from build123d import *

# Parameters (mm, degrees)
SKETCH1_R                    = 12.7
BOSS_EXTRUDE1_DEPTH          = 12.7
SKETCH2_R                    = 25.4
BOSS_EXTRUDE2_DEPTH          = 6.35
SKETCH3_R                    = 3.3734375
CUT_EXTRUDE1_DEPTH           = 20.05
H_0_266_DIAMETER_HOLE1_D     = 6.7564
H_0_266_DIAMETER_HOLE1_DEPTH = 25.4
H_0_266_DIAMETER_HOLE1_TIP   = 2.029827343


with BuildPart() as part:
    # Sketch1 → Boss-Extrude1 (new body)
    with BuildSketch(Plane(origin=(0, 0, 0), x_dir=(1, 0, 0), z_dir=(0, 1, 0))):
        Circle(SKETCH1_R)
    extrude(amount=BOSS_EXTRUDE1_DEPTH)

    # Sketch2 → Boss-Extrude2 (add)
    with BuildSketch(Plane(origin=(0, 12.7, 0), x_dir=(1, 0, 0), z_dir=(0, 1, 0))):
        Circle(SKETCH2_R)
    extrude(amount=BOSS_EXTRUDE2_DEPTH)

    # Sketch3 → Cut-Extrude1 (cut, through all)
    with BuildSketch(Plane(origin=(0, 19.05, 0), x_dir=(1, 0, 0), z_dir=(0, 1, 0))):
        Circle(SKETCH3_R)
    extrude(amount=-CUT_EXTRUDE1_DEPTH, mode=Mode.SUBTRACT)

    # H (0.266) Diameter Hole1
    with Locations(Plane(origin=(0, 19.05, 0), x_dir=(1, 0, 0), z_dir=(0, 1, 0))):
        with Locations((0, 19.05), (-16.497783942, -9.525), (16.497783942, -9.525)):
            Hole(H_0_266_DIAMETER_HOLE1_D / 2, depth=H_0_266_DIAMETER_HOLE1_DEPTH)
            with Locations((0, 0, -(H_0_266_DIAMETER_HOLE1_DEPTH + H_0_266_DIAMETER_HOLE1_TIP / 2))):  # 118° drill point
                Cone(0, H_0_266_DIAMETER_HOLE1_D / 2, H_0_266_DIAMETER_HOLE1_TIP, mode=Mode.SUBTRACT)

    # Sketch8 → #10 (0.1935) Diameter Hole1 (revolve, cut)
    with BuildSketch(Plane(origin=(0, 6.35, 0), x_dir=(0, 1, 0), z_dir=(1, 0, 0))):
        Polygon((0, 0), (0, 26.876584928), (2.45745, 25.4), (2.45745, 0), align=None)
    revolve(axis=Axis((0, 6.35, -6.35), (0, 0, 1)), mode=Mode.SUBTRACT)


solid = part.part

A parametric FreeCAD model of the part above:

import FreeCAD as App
import Part
import Sketcher
Q = App.Units.Quantity

doc = App.newDocument("Part")
body = doc.addObject("PartDesign::Body", "Body")

sketch1 = body.newObject("Sketcher::SketchObject", "Sketch")
sketch1.AttachmentSupport = (doc.getObject("XZ_Plane"), [""])
sketch1.MapMode = "FlatFace"
sketch1.addGeometry(Part.Circle(App.Vector(0, 0, 0), App.Vector(0, 0, 1), 13), False)
sketch1.addConstraint(Sketcher.Constraint("Coincident", 0, 3, -1, 1))
sketch1.addConstraint(Sketcher.Constraint("Diameter", 0, Q("1 in")))
pad1 = body.newObject("PartDesign::Pad", "Pad")
pad1.Profile = sketch1
pad1.Length = Q("0.5 in")
pad1.Reversed = True

sketch2 = body.newObject("Sketcher::SketchObject", "Sketch001")
sketch2.AttachmentSupport = (doc.getObject("XZ_Plane"), [""])
sketch2.MapMode = "FlatFace"
sketch2.AttachmentOffset = App.Placement(App.Vector(0, 0, -0.5 * 25.4), App.Rotation())
sketch2.addGeometry(Part.Circle(App.Vector(0, 0, 0), App.Vector(0, 0, 1), 25), False)
sketch2.addConstraint(Sketcher.Constraint("Coincident", 0, 3, -1, 1))
sketch2.addConstraint(Sketcher.Constraint("Diameter", 0, Q("2 in")))
pad2 = body.newObject("PartDesign::Pad", "Pad001")
pad2.Profile = sketch2
pad2.Length = Q("0.25 in")
pad2.Reversed = True

sketch3 = body.newObject("Sketcher::SketchObject", "Sketch002")
sketch3.AttachmentSupport = (doc.getObject("XZ_Plane"), [""])
sketch3.MapMode = "FlatFace"
sketch3.AttachmentOffset = App.Placement(App.Vector(0, 0, -0.75 * 25.4), App.Rotation())
sketch3.addGeometry(Part.Circle(App.Vector(0, 0, 0), App.Vector(0, 0, 1), 3.4), False)
sketch3.addConstraint(Sketcher.Constraint("Coincident", 0, 3, -1, 1))
sketch3.addConstraint(Sketcher.Constraint("Diameter", 0, Q("0.265625 in")))
pocket1 = body.newObject("PartDesign::Pocket", "Pocket")
pocket1.Profile = sketch3
pocket1.Type = "ThroughAll"
pocket1.Reversed = True

sketch4 = body.newObject("Sketcher::SketchObject", "Sketch003")
sketch4.AttachmentSupport = (doc.getObject("XZ_Plane"), [""])
sketch4.MapMode = "FlatFace"
sketch4.AttachmentOffset = App.Placement(App.Vector(0, 0, -0.75 * 25.4), App.Rotation())
sketch4.addGeometry(Part.Circle(App.Vector(0, -19.1, 0), App.Vector(0, 0, 1), 3.4), False)
sketch4.addGeometry(Part.Circle(App.Vector(-16.5, 9.5, 0), App.Vector(0, 0, 1), 3.4), False)
sketch4.addGeometry(Part.Circle(App.Vector(16.5, 9.5, 0), App.Vector(0, 0, 1), 3.4), False)
sketch4.addConstraint(Sketcher.Constraint("Equal", 0, 1))
sketch4.addConstraint(Sketcher.Constraint("Equal", 1, 2))
sketch4.addConstraint(Sketcher.Constraint("Symmetric", 1, 3, 2, 3, -2))
sketch4.addConstraint(Sketcher.Constraint("PointOnObject", 0, 3, -2))
sketch4.addConstraint(Sketcher.Constraint("Diameter", 0, Q("0.266 in")))
sketch4.addConstraint(Sketcher.Constraint("DistanceY", 0, 3, -1, 1, Q("0.75 in")))
sketch4.addConstraint(Sketcher.Constraint("DistanceY", -1, 1, 1, 3, Q("0.375 in")))
sketch4.addConstraint(Sketcher.Constraint("DistanceX", 1, 3, -1, 1, Q("16.497784 mm")))
doc.recompute()
hole = body.newObject("PartDesign::Hole", "Hole")
hole.Profile = sketch4
hole.ThreadType = "None"
hole.Diameter = Q("0.266 in")
hole.DepthType = "Dimension"
hole.Depth = Q("1 in")
hole.DrillPoint = "Angled"
hole.DrillPointAngle = 118
hole.Reversed = True

sketch5 = body.newObject("Sketcher::SketchObject", "Sketch004")
sketch5.AttachmentSupport = (doc.getObject("YZ_Plane"), [""])
sketch5.MapMode = "FlatFace"
sketch5.addGeometry(Part.LineSegment(App.Vector(6.3, 26.9, 0), App.Vector(6.3, 0, 0)), False)
sketch5.addGeometry(Part.LineSegment(App.Vector(6.3, 0, 0), App.Vector(8.8, 0, 0)), False)
sketch5.addGeometry(Part.LineSegment(App.Vector(8.8, 0, 0), App.Vector(8.8, 25.4, 0)), False)
sketch5.addGeometry(Part.LineSegment(App.Vector(8.8, 25.4, 0), App.Vector(6.3, 26.9, 0)), False)
sketch5.addGeometry(Part.LineSegment(App.Vector(6.3, 0, 0), App.Vector(6.3, 26.9, 0)), True)
sketch5.addConstraint(Sketcher.Constraint("Coincident", 0, 2, 1, 1))
sketch5.addConstraint(Sketcher.Constraint("Coincident", 1, 2, 2, 1))
sketch5.addConstraint(Sketcher.Constraint("Coincident", 2, 2, 3, 1))
sketch5.addConstraint(Sketcher.Constraint("Coincident", 3, 2, 0, 1))
sketch5.addConstraint(Sketcher.Constraint("Vertical", 0))
sketch5.addConstraint(Sketcher.Constraint("Horizontal", 1))
sketch5.addConstraint(Sketcher.Constraint("Vertical", 2))
sketch5.addConstraint(Sketcher.Constraint("Vertical", 4))
sketch5.addConstraint(Sketcher.Constraint("Coincident", 4, 1, 0, 2))
sketch5.addConstraint(Sketcher.Constraint("PointOnObject", 0, 2, -1))
sketch5.addConstraint(Sketcher.Constraint("Equal", 0, 4))
sketch5.addConstraint(Sketcher.Constraint("DistanceY", 2, 1, 2, 2, Q("1 in")))
sketch5.addConstraint(Sketcher.Constraint("Angle", 3, Q("149 deg")))
sketch5.addConstraint(Sketcher.Constraint("DistanceX", -1, 1, 0, 2, Q("0.25 in")))
sketch5.addConstraint(Sketcher.Constraint("DistanceX", 1, 1, 1, 2, Q("2.45745 mm")))
groove = body.newObject("PartDesign::Groove", "Groove")
groove.Profile = sketch5
groove.ReferenceAxis = (sketch5, ["Axis0"])
groove.Angle = 360

doc.recompute()
